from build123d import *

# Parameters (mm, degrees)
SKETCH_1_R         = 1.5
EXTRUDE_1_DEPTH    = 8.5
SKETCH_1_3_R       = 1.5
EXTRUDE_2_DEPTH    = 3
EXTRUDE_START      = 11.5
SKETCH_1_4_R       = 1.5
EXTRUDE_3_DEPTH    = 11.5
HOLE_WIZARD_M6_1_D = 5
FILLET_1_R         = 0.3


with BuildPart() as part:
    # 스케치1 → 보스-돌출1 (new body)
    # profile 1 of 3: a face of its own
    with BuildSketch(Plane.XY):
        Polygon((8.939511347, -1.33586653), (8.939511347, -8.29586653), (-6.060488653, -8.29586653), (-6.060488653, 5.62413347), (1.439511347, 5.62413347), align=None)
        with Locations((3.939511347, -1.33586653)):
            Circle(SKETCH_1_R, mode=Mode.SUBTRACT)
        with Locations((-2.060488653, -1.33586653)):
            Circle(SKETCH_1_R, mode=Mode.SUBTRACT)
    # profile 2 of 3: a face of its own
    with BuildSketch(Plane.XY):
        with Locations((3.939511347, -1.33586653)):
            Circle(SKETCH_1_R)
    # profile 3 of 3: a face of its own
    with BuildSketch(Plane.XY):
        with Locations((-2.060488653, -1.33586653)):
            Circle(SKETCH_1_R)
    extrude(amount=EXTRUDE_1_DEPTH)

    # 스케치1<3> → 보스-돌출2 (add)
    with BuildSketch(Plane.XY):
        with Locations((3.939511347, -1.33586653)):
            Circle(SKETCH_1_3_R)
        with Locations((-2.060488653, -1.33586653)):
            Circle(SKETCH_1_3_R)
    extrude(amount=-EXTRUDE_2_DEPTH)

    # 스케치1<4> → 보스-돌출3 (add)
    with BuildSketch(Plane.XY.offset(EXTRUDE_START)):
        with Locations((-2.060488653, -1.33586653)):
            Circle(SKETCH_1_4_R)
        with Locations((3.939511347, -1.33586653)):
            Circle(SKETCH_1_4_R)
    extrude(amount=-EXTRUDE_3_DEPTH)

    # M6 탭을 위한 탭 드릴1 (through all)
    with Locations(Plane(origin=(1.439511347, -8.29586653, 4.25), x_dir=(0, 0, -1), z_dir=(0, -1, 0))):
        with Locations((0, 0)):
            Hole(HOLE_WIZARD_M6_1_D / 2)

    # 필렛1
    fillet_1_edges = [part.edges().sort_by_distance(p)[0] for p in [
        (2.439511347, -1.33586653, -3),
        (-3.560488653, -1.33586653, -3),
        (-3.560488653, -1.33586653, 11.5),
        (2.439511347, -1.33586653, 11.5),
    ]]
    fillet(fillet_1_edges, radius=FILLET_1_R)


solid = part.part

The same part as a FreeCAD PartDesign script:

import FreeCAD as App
import Part
import Sketcher
from FreeCAD import Vector


def edges_at(feature, points):
    """Names of the edges that pass closest to the given points."""
    edges = feature.Shape.Edges
    near = lambda p: min(range(len(edges)), key=lambda i: edges[i].distToShape(Part.Vertex(*p))[0])
    return sorted({f"Edge{near(p) + 1}" for p in points})


def add_polygon(sketch, points):
    """Adds a closed chain of lines whose ends are joined by coincident constraints."""
    first, n = sketch.GeometryCount, len(points)
    for a, b in zip(points, points[1:] + points[:1]):
        sketch.addGeometry(Part.LineSegment(App.Vector(*a, 0), App.Vector(*b, 0)), False)
    for i in range(n):
        sketch.addConstraint(Sketcher.Constraint("Coincident", first + i, 2, first + (i + 1) % n, 1))

doc = App.newDocument("Part")
params = doc.addObject("Spreadsheet::Sheet", "Params")
for row, (alias, value) in enumerate([
    ("sketch1_width", "15 mm"),
    ("sketch1_width2", "7.5 mm"),
    ("sketch1_height", "6.96 mm"),
    ("sketch1_height2", "13.92 mm"),
    ("pad1_length", "8.5 mm"),
    ("sketch2_diameter", "3 mm"),
    ("pad2_length", "3 mm"),
    ("sketch3_diameter", "3 mm"),
    ("pad3_length", "11.5 mm"),
    ("sketch4_diameter", "5 mm"),
    ("hole_diameter", "5 mm"),
    ("fillet_radius", "0.3 mm"),
], start=1):
    params.set(f"A{row}", alias)
    params.set(f"B{row}", "=" + value)
    params.setAlias(f"B{row}", alias)

body = doc.addObject("PartDesign::Body", "Body")

sketch1 = body.newObject("Sketcher::SketchObject", "Sketch")
sketch1.AttachmentSupport = (doc.getObject("XY_Plane"), [""])
sketch1.MapMode = "FlatFace"
add_polygon(sketch1, [(8.939511, -8.295867), (8.939511, -1.335867), (1.439511, 5.624133), (-6.060489, 5.624133), (-6.060489, -8.295867)])
sketch1.addConstraint(Sketcher.Constraint("Vertical", 0))
sketch1.addConstraint(Sketcher.Constraint("Horizontal", 2))
sketch1.addConstraint(Sketcher.Constraint("Vertical", 3))
sketch1.addConstraint(Sketcher.Constraint("Horizontal", 4))
sketch1.addConstraint(Sketcher.Constraint("DistanceX", 4, 1, 4, 2, 15.0))
sketch1.addConstraint(Sketcher.Constraint("DistanceX", 2, 2, 2, 1, 7.5))
sketch1.addConstraint(Sketcher.Constraint("DistanceY", 0, 1, 0, 2, 6.96))
sketch1.addConstraint(Sketcher.Constraint("DistanceY", 3, 2, 3, 1, 13.92))
sketch1.addConstraint(Sketcher.Constraint("DistanceX", -1, 1, 0, 2, 8.939511))
sketch1.addConstraint(Sketcher.Constraint("DistanceY", 0, 2, -1, 1, 1.335867))
sketch1.setExpression("Constraints[9]", "Params.sketch1_width")
sketch1.setExpression("Constraints[10]", "Params.sketch1_width2")
sketch1.setExpression("Constraints[11]", "Params.sketch1_height")
sketch1.setExpression("Constraints[12]", "Params.sketch1_height2")
pad1 = body.newObject("PartDesign::Pad", "Pad")
pad1.Profile = sketch1
pad1.setExpression("Length", "Params.pad1_length")

sketch2 = body.newObject("Sketcher::SketchObject", "Sketch001")
sketch2.AttachmentSupport = (doc.getObject("XY_Plane"), [""])
sketch2.MapMode = "FlatFace"
sketch2.addGeometry(Part.Circle(Vector(3.939511, -1.335867, 0), Vector(0, 0, 1), 1.5), False)
sketch2.addGeometry(Part.Circle(Vector(-2.060489, -1.335867, 0), Vector(0, 0, 1), 1.5), False)
sketch2.addConstraint(Sketcher.Constraint("Equal", 0, 1))
sketch2.addConstraint(Sketcher.Constraint("Horizontal", 0, 3, 1, 3))
sketch2.addConstraint(Sketcher.Constraint("Diameter", 0, 3.0))
sketch2.addConstraint(Sketcher.Constraint("DistanceX", 1, 3, 0, 3, 6.0))
sketch2.addConstraint(Sketcher.Constraint("DistanceX", -1, 1, 0, 3, 3.939511))
sketch2.addConstraint(Sketcher.Constraint("DistanceY", 0, 3, -1, 1, 1.335867))
sketch2.setExpression("Constraints[2]", "Params.sketch2_diameter")
pad2 = body.newObject("PartDesign::Pad", "Pad001")
pad2.Profile = sketch2
pad2.setExpression("Length", "Params.pad2_length")
pad2.Reversed = True

sketch3 = body.newObject("Sketcher::SketchObject", "Sketch002")
sketch3.AttachmentSupport = (doc.getObject("XY_Plane"), [""])
sketch3.MapMode = "FlatFace"
sketch3.AttachmentOffset = App.Placement(Vector(0, 0, 11.5), App.Rotation())
sketch3.addGeometry(Part.Circle(Vector(-2.060489, -1.335867, 0), Vector(0, 0, 1), 1.5), False)
sketch3.addGeometry(Part.Circle(Vector(3.939511, -1.335867, 0), Vector(0, 0, 1), 1.5), False)
sketch3.addConstraint(Sketcher.Constraint("Equal", 0, 1))
sketch3.addConstraint(Sketcher.Constraint("Horizontal", 0, 3, 1, 3))
sketch3.addConstraint(Sketcher.Constraint("Diameter", 0, 3.0))
sketch3.addConstraint(Sketcher.Constraint("DistanceX", 0, 3, 1, 3, 6.0))
sketch3.addConstraint(Sketcher.Constraint("DistanceX", 0, 3, -1, 1, 2.060489))
sketch3.addConstraint(Sketcher.Constraint("DistanceY", 0, 3, -1, 1, 1.335867))
sketch3.setExpression("Constraints[2]", "Params.sketch3_diameter")
pad3 = body.newObject("PartDesign::Pad", "Pad002")
pad3.Profile = sketch3
pad3.setExpression("Length", "Params.pad3_length")
pad3.Reversed = True

sketch4 = body.newObject("Sketcher::SketchObject", "Sketch003")
sketch4.AttachmentSupport = (doc.getObject("XZ_Plane"), [""])
sketch4.MapMode = "FlatFace"
sketch4.AttachmentOffset = App.Placement(Vector(0, 0, 8.295867), App.Rotation())
sketch4.addGeometry(Part.Circle(Vector(1.439511, 4.25, 0), Vector(0, 0, 1), 2.5), False)
sketch4.addConstraint(Sketcher.Constraint("Diameter", 0, 5.0))
sketch4.addConstraint(Sketcher.Constraint("DistanceY", -1, 1, 0, 3, 4.25))
sketch4.addConstraint(Sketcher.Constraint("DistanceX", -1, 1, 0, 3, 1.439511))
sketch4.setExpression("Constraints[0]", "Params.sketch4_diameter")
doc.recompute()
hole = body.newObject("PartDesign::Hole", "Hole")
hole.Profile = sketch4
hole.ThreadType = "None"
hole.setExpression("Diameter", "Params.hole_diameter")
hole.DepthType = "ThroughAll"
doc.recompute()

fillet = body.newObject("PartDesign::Fillet", "Fillet")
fillet.Base = (hole, edges_at(hole, [
    (2.44, -1.336, -3),
    (-3.56, -1.336, -3),
    (-3.56, -1.336, 11.5),
    (2.44, -1.336, 11.5),
]))
fillet.setExpression("Radius", "Params.fillet_radius")

doc.recompute()
